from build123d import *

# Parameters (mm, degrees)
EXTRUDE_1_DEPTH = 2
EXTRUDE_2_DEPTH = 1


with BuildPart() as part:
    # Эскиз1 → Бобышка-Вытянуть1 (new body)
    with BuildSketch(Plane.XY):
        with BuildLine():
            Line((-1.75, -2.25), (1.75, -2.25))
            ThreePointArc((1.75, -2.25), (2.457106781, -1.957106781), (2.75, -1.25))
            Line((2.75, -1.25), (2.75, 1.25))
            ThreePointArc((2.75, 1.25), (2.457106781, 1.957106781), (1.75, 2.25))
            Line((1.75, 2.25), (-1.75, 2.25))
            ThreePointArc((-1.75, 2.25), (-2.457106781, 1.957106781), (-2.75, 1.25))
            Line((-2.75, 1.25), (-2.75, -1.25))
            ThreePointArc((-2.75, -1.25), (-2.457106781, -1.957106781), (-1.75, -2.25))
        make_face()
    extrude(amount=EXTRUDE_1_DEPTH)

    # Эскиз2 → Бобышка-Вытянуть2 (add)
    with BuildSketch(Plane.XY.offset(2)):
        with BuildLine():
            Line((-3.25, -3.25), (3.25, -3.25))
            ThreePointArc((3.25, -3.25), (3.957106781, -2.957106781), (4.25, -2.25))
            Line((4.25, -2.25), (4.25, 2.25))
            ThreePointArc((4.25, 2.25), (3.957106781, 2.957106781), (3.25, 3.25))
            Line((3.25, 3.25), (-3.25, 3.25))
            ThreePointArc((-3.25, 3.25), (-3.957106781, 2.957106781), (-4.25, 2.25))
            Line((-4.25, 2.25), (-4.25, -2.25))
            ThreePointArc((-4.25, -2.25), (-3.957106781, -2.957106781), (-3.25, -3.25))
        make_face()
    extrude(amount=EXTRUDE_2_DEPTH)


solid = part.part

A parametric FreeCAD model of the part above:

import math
import FreeCAD as App
import Part
import Sketcher
Q = App.Units.Quantity

doc = App.newDocument("Part")
params = doc.addObject("Spreadsheet::Sheet", "Params")
for row, (alias, value) in enumerate([
    ("sketch1_radius", "1 mm"),
    ("sketch1_width", "3.5 mm"),
    ("sketch1_height", "2.5 mm"),
    ("pad1_length", "2 mm"),
    ("sketch2_radius", "1 mm"),
    ("sketch2_width", "6.5 mm"),
    ("sketch2_height", "4.5 mm"),
    ("pad2_length", "1 mm"),
], start=1):
    params.set(f"A{row}", alias)
    params.set(f"B{row}", "=" + value)
    params.setAlias(f"B{row}", alias)

body = doc.addObject("PartDesign::Body", "Body")

sketch1 = body.newObject("Sketcher::SketchObject", "Sketch")
sketch1.AttachmentSupport = (doc.getObject("XY_Plane"), [""])
sketch1.MapMode = "FlatFace"
sketch1.addGeometry([
    Part.LineSegment(App.Vector(-1.8, -2.2, 0), App.Vector(1.8, -2.2, 0)),
    Part.ArcOfCircle(Part.Circle(App.Vector(1.7, -1.2, 0), App.Vector(0, 0, 1), 1), math.radians(-90), math.radians(0)),
    Part.LineSegment(App.Vector(2.8, -1.2, 0), App.Vector(2.8, 1.2, 0)),
    Part.ArcOfCircle(Part.Circle(App.Vector(1.7, 1.2, 0), App.Vector(0, 0, 1), 1), math.radians(0), math.radians(90)),
    Part.LineSegment(App.Vector(1.8, 2.2, 0), App.Vector(-1.8, 2.2, 0)),
    Part.ArcOfCircle(Part.Circle(App.Vector(-1.7, 1.2, 0), App.Vector(0, 0, 1), 1), math.radians(90), math.radians(180)),
    Part.LineSegment(App.Vector(-2.8, 1.2, 0), App.Vector(-2.8, -1.2, 0)),
    Part.ArcOfCircle(Part.Circle(App.Vector(-1.7, -1.2, 0), App.Vector(0, 0, 1), 1), math.radians(-180), math.radians(-90)),
], False)
sketch1.addConstraint([
    Sketcher.Constraint("Tangent", 0, 2, 1, 1),
    Sketcher.Constraint("Tangent", 1, 2, 2, 1),
    Sketcher.Constraint("Tangent", 2, 2, 3, 1),
    Sketcher.Constraint("Tangent", 3, 2, 4, 1),
    Sketcher.Constraint("Tangent", 4, 2, 5, 1),
    Sketcher.Constraint("Tangent", 5, 2, 6, 1),
    Sketcher.Constraint("Tangent", 6, 2, 7, 1),
    Sketcher.Constraint("Tangent", 7, 2, 0, 1),
    Sketcher.Constraint("Horizontal", 0),
    Sketcher.Constraint("Vertical", 2),
    Sketcher.Constraint("Horizontal", 4),
    Sketcher.Constraint("Vertical", 6),
    Sketcher.Constraint("Equal", 1, 3),
    Sketcher.Constraint("Equal", 3, 5),
    Sketcher.Constraint("Equal", 5, 7),
    Sketcher.Constraint("Symmetric", 1, 3, 5, 3, -1, 1),
    Sketcher.Constraint("Radius", 1, Q("1 mm")),
    Sketcher.Constraint("DistanceX", 0, 1, 0, 2, Q("3.5 mm")),
    Sketcher.Constraint("DistanceY", 2, 1, 2, 2, Q("2.5 mm")),
])
sketch1.setExpression("Constraints[16]", "Params.sketch1_radius")
sketch1.setExpression("Constraints[17]", "Params.sketch1_width")
sketch1.setExpression("Constraints[18]", "Params.sketch1_height")
pad1 = body.newObject("PartDesign::Pad", "Pad")
pad1.Profile = sketch1
pad1.setExpression("Length", "Params.pad1_length")

sketch2 = body.newObject("Sketcher::SketchObject", "Sketch001")
sketch2.AttachmentSupport = (doc.getObject("XY_Plane"), [""])
sketch2.MapMode = "FlatFace"
sketch2.AttachmentOffset = App.Placement(App.Vector(0, 0, 2), App.Rotation())
sketch2.addGeometry([
    Part.LineSegment(App.Vector(-3.2, -3.2, 0), App.Vector(3.2, -3.2, 0)),
    Part.ArcOfCircle(Part.Circle(App.Vector(3.2, -2.2, 0), App.Vector(0, 0, 1), 1), math.radians(-90), math.radians(0)),
    Part.LineSegment(App.Vector(4.2, -2.2, 0), App.Vector(4.2, 2.2, 0)),
    Part.ArcOfCircle(Part.Circle(App.Vector(3.2, 2.2, 0), App.Vector(0, 0, 1), 1), math.radians(0), math.radians(90)),
    Part.LineSegment(App.Vector(3.2, 3.2, 0), App.Vector(-3.2, 3.2, 0)),
    Part.ArcOfCircle(Part.Circle(App.Vector(-3.2, 2.2, 0), App.Vector(0, 0, 1), 1), math.radians(90), math.radians(180)),
    Part.LineSegment(App.Vector(-4.2, 2.2, 0), App.Vector(-4.2, -2.2, 0)),
    Part.ArcOfCircle(Part.Circle(App.Vector(-3.2, -2.2, 0), App.Vector(0, 0, 1), 1), math.radians(-180), math.radians(-90)),
], False)
sketch2.addConstraint([
    Sketcher.Constraint("Tangent", 0, 2, 1, 1),
    Sketcher.Constraint("Tangent", 1, 2, 2, 1),
    Sketcher.Constraint("Tangent", 2, 2, 3, 1),
    Sketcher.Constraint("Tangent", 3, 2, 4, 1),
    Sketcher.Constraint("Tangent", 4, 2, 5, 1),
    Sketcher.Constraint("Tangent", 5, 2, 6, 1),
    Sketcher.Constraint("Tangent", 6, 2, 7, 1),
    Sketcher.Constraint("Tangent", 7, 2, 0, 1),
    Sketcher.Constraint("Horizontal", 0),
    Sketcher.Constraint("Vertical", 2),
    Sketcher.Constraint("Horizontal", 4),
    Sketcher.Constraint("Vertical", 6),
    Sketcher.Constraint("Equal", 1, 3),
    Sketcher.Constraint("Equal", 3, 5),
    Sketcher.Constraint("Equal", 5, 7),
    Sketcher.Constraint("Symmetric", 1, 3, 5, 3, -1, 1),
    Sketcher.Constraint("Radius", 1, Q("1 mm")),
    Sketcher.Constraint("DistanceX", 0, 1, 0, 2, Q("6.5 mm")),
    Sketcher.Constraint("DistanceY", 2, 1, 2, 2, Q("4.5 mm")),
])
sketch2.setExpression("Constraints[16]", "Params.sketch2_radius")
sketch2.setExpression("Constraints[17]", "Params.sketch2_width")
sketch2.setExpression("Constraints[18]", "Params.sketch2_height")
pad2 = body.newObject("PartDesign::Pad", "Pad001")
pad2.Profile = sketch2
pad2.setExpression("Length", "Params.pad2_length")

doc.recompute()
